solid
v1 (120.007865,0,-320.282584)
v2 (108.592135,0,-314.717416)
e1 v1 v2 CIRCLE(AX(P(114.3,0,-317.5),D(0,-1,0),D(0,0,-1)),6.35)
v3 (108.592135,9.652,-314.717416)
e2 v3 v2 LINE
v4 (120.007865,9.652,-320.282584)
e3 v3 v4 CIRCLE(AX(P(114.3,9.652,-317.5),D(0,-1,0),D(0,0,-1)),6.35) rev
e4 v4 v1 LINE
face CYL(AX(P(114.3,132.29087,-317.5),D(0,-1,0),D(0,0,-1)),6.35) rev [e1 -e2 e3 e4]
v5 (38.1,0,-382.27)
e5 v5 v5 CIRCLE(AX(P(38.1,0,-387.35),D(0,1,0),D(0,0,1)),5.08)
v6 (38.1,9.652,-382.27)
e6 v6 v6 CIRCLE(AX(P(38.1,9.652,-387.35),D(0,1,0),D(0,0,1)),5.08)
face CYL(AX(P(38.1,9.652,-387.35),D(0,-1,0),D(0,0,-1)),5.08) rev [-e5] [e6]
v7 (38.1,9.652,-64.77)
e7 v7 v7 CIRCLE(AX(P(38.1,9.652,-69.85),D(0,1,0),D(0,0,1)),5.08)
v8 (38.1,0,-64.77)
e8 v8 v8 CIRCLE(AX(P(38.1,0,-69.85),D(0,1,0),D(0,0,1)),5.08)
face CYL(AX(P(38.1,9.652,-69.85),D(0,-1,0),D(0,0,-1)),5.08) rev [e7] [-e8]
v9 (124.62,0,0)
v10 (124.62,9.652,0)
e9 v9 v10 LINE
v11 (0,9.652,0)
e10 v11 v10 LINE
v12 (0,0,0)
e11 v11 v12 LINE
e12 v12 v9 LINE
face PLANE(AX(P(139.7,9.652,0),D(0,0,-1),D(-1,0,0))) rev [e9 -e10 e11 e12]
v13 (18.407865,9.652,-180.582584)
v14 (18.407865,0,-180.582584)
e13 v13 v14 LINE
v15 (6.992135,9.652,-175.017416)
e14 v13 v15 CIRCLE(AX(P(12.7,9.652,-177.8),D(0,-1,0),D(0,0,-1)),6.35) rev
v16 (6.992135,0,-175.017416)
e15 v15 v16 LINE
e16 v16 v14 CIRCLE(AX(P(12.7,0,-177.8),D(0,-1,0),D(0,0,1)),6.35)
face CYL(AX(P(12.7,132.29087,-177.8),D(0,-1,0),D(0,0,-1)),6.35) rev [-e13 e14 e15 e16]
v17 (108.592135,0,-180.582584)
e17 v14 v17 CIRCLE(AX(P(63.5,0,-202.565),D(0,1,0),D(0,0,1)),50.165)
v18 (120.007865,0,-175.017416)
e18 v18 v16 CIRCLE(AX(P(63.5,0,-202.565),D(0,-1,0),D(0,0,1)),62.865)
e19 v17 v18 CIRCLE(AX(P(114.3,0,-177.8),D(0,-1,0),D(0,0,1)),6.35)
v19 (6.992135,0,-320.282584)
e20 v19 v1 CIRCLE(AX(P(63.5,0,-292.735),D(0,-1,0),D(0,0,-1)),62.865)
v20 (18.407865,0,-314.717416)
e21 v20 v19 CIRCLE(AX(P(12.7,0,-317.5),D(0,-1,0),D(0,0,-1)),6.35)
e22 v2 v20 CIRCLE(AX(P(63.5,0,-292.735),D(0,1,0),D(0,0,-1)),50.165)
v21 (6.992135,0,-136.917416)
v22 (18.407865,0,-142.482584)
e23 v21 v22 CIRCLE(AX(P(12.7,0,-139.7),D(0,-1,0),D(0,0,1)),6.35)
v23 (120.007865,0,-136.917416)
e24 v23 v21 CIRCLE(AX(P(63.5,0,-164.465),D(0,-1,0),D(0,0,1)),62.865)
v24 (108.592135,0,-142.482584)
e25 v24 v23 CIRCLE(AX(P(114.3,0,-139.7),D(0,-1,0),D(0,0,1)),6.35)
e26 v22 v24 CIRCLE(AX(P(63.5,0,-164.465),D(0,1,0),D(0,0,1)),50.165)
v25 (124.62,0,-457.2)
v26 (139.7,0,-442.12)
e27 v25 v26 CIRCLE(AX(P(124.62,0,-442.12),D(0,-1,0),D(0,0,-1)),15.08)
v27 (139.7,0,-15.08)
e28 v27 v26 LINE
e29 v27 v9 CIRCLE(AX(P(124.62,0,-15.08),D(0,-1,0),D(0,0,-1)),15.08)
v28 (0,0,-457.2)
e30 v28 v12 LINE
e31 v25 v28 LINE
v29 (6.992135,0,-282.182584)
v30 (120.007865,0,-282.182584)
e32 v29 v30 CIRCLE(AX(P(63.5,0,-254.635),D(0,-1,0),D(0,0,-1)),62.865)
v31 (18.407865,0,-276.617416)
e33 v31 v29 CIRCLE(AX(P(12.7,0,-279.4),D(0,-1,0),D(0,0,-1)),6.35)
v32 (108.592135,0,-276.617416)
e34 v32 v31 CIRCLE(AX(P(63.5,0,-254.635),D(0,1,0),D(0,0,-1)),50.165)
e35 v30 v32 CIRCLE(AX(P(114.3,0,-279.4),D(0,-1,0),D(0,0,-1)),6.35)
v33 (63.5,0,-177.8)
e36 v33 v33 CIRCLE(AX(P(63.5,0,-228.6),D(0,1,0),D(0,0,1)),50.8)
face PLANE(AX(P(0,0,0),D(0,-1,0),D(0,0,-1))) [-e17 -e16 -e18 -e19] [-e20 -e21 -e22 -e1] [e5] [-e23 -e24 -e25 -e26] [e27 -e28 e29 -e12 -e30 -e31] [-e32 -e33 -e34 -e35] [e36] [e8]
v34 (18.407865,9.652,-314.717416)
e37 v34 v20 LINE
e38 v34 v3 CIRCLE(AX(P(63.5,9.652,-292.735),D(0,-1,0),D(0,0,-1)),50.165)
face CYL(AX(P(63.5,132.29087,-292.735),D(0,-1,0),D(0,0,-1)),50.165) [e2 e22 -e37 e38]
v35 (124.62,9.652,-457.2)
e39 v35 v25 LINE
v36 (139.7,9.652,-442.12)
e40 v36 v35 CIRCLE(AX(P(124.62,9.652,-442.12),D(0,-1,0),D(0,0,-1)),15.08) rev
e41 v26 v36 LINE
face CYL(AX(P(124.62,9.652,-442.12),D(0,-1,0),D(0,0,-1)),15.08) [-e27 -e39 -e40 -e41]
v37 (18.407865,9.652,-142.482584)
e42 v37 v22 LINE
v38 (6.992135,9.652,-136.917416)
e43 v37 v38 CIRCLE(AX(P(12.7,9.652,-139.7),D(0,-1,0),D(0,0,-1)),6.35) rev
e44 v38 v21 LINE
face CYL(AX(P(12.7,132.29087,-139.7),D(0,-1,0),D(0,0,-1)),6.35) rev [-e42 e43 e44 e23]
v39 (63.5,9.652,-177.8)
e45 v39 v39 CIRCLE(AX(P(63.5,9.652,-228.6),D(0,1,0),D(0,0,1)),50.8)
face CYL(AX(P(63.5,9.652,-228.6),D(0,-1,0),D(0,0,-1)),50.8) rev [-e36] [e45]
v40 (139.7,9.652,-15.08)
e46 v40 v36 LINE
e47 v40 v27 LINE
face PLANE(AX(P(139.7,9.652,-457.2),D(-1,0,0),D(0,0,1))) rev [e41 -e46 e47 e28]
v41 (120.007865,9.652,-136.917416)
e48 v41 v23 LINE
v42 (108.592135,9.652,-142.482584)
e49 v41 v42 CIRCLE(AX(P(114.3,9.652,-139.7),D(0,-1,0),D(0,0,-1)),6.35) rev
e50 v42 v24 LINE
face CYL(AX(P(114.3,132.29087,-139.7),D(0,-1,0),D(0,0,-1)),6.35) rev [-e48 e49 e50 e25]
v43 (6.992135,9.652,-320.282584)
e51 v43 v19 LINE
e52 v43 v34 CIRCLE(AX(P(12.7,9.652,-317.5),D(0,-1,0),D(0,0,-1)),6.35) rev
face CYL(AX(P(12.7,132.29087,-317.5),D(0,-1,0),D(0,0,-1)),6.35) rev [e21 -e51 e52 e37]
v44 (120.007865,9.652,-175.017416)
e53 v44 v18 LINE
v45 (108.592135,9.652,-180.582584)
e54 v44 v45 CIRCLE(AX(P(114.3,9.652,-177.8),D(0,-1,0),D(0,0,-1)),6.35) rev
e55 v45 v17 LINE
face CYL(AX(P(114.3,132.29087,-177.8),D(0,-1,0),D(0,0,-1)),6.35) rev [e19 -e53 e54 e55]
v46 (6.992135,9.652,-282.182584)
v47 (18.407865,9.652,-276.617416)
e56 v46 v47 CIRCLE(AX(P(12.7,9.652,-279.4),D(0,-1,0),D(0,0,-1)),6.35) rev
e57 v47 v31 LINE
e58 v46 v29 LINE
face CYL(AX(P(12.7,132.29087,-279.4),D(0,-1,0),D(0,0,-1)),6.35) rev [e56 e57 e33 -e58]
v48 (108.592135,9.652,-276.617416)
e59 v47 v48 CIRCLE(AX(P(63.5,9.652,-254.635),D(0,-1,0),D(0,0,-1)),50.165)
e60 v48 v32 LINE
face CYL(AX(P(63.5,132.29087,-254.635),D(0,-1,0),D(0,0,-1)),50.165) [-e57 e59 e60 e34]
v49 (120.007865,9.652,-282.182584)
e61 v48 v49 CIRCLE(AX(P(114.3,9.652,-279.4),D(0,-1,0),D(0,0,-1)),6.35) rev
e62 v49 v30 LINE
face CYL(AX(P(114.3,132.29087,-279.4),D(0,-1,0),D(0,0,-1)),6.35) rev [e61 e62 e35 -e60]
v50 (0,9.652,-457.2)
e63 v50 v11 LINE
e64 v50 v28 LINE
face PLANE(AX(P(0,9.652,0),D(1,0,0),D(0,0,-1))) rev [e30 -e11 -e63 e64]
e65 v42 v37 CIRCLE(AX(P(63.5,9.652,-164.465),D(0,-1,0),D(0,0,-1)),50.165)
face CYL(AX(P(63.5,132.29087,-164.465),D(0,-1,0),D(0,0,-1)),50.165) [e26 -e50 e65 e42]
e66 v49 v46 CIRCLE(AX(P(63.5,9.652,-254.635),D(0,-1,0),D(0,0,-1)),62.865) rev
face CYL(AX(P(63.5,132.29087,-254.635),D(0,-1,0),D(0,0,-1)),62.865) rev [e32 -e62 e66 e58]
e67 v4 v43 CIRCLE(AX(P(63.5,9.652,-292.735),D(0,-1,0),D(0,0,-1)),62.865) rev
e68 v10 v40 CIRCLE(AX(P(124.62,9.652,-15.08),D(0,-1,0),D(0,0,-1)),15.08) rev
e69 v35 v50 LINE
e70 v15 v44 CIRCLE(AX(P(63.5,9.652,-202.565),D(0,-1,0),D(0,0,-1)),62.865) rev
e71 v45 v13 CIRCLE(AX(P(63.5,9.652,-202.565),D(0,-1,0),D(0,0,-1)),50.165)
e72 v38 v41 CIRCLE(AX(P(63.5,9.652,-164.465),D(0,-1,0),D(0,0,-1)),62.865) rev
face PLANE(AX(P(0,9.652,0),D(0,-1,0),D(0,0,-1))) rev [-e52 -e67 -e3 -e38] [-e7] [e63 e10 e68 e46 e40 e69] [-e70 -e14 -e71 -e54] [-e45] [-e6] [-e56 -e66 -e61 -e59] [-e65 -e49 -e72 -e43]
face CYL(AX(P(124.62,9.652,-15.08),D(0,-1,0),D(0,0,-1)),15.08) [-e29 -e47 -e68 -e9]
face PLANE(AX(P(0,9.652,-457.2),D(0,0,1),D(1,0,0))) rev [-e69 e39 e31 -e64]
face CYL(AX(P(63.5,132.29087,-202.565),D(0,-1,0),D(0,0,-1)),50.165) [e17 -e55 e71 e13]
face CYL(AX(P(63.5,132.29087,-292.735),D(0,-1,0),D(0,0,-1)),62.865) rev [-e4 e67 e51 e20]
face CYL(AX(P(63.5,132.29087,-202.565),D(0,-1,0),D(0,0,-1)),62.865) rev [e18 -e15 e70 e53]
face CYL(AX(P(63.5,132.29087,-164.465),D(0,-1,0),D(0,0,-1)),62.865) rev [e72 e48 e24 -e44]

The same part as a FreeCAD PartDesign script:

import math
import FreeCAD as App
import Part
import Sketcher
from FreeCAD import Vector
Q = App.Units.Quantity


def edges_at(feature, points):
    """Names of the edges that pass closest to the given points."""
    edges = feature.Shape.Edges
    near = lambda p: min(range(len(edges)), key=lambda i: edges[i].distToShape(Part.Vertex(*p))[0])
    return sorted({f"Edge{near(p) + 1}" for p in points})


def add_polygon(sketch, points):
    """Adds a closed chain of lines whose ends are joined by coincident constraints."""
    first, n = sketch.GeometryCount, len(points)
    for a, b in zip(points, points[1:] + points[:1]):
        sketch.addGeometry(Part.LineSegment(App.Vector(*a, 0), App.Vector(*b, 0)), False)
    for i in range(n):
        sketch.addConstraint(Sketcher.Constraint("Coincident", first + i, 2, first + (i + 1) % n, 1))

doc = App.newDocument("Part")
body = doc.addObject("PartDesign::Body", "Body")

sketch1 = doc.addObject("Sketcher::SketchObject", "Sketch")
body.addObject(sketch1)
sketch1.AttachmentSupport = (doc.XZ_Plane, [""])
sketch1.MapMode = "FlatFace"
add_polygon(sketch1, [(0, -457), (0, 0), (140, 0), (140, -457)])
sketch1.addGeometry(Part.Circle(Vector(38, -70, 0), Vector(0, 0, 1), 5), False)
sketch1.addGeometry(Part.Circle(Vector(64, -229, 0), Vector(0, 0, 1), 51), False)
sketch1.addGeometry(Part.Circle(Vector(38, -387, 0), Vector(0, 0, 1), 5), False)
sketch1.addConstraint(Sketcher.Constraint("Vertical", 0))
sketch1.addConstraint(Sketcher.Constraint("Horizontal", 1))
sketch1.addConstraint(Sketcher.Constraint("Vertical", 2))
sketch1.addConstraint(Sketcher.Constraint("Horizontal", 3))
sketch1.addConstraint(Sketcher.Constraint("Coincident", 0, 2, -1, 1))
sketch1.addConstraint(Sketcher.Constraint("Equal", 4, 6))
sketch1.addConstraint(Sketcher.Constraint("Vertical", 4, 3, 6, 3))
sketch1.addConstraint(Sketcher.Constraint("Diameter", 5, Q("4 in")))
sketch1.addConstraint(Sketcher.Constraint("Diameter", 4, Q("0.4 in")))
sketch1.addConstraint(Sketcher.Constraint("DistanceY", 0, 1, 0, 2, Q("18 in")))
sketch1.addConstraint(Sketcher.Constraint("DistanceX", 1, 1, 1, 2, Q("5.5 in")))
sketch1.addConstraint(Sketcher.Constraint("DistanceY", 5, 3, -1, 1, Q("9 in")))
sketch1.addConstraint(Sketcher.Constraint("DistanceX", 4, 3, 5, 3, Q("1 in")))
sketch1.addConstraint(Sketcher.Constraint("DistanceX", 4, 3, 1, 2, Q("4 in")))
sketch1.addConstraint(Sketcher.Constraint("DistanceY", 6, 3, 4, 3, Q("12.5 in")))
sketch1.addConstraint(Sketcher.Constraint("DistanceY", 4, 3, -1, 1, Q("2.75 in")))
pad1 = doc.addObject("PartDesign::Pad", "Pad")
body.addObject(pad1)
pad1.Profile = sketch1
pad1.Length = Q("0.38 in")
pad1.Reversed = True
doc.recompute()

fillet = doc.addObject("PartDesign::Fillet", "Fillet")
body.addObject(fillet)
fillet.Base = (pad1, edges_at(pad1, [(139.7, 4.826, -457.2), (139.7, 4.826, 0)]))
fillet.Radius = 15.08

sketch2 = doc.addObject("Sketcher::SketchObject", "Sketch001")
body.addObject(sketch2)
sketch2.AttachmentSupport = (doc.XZ_Plane, [""])
sketch2.MapMode = "FlatFace"
sketch2.addGeometry(Part.ArcOfCircle(Part.Circle(Vector(64, -293, 0), Vector(0, 0, 1), 50), math.radians(-154), math.radians(-26)), False)
sketch2.addGeometry(Part.ArcOfCircle(Part.Circle(Vector(13, -318, 0), Vector(0, 0, 1), 6), math.radians(26), math.radians(206)), False)
sketch2.addGeometry(Part.ArcOfCircle(Part.Circle(Vector(64, -293, 0), Vector(0, 0, 1), 63), math.radians(-154), math.radians(-26)), False)
sketch2.addGeometry(Part.ArcOfCircle(Part.Circle(Vector(114, -318, 0), Vector(0, 0, 1), 6), math.radians(-26), math.radians(154)), False)
sketch2.addGeometry(Part.ArcOfCircle(Part.Circle(Vector(64, -255, 0), Vector(0, 0, 1), 63), math.radians(-154), math.radians(-26)), False)
sketch2.addGeometry(Part.ArcOfCircle(Part.Circle(Vector(114, -279, 0), Vector(0, 0, 1), 6), math.radians(-26), math.radians(154)), False)
sketch2.addGeometry(Part.ArcOfCircle(Part.Circle(Vector(64, -255, 0), Vector(0, 0, 1), 50), math.radians(-154), math.radians(-26)), False)
sketch2.addGeometry(Part.ArcOfCircle(Part.Circle(Vector(13, -279, 0), Vector(0, 0, 1), 6), math.radians(26), math.radians(206)), False)
sketch2.addGeometry(Part.ArcOfCircle(Part.Circle(Vector(64, -164, 0), Vector(0, 0, 1), 63), math.radians(26), math.radians(154)), False)
sketch2.addGeometry(Part.ArcOfCircle(Part.Circle(Vector(13, -140, 0), Vector(0, 0, 1), 6), math.radians(154), math.radians(334)), False)
sketch2.addGeometry(Part.ArcOfCircle(Part.Circle(Vector(64, -164, 0), Vector(0, 0, 1), 50), math.radians(26), math.radians(154)), False)
sketch2.addGeometry(Part.ArcOfCircle(Part.Circle(Vector(114, -140, 0), Vector(0, 0, 1), 6), math.radians(-154), math.radians(26)), False)
sketch2.addGeometry(Part.ArcOfCircle(Part.Circle(Vector(64, -203, 0), Vector(0, 0, 1), 63), math.radians(26), math.radians(154)), False)
sketch2.addGeometry(Part.ArcOfCircle(Part.Circle(Vector(13, -178, 0), Vector(0, 0, 1), 6), math.radians(154), math.radians(334)), False)
sketch2.addGeometry(Part.ArcOfCircle(Part.Circle(Vector(64, -203, 0), Vector(0, 0, 1), 50), math.radians(26), math.radians(154)), False)
sketch2.addGeometry(Part.ArcOfCircle(Part.Circle(Vector(114, -178, 0), Vector(0, 0, 1), 6), math.radians(-154), math.radians(26)), False)
sketch2.addConstraint(Sketcher.Constraint("Tangent", 0, 1, 1, 1))
sketch2.addConstraint(Sketcher.Constraint("Tangent", 1, 2, 2, 1))
sketch2.addConstraint(Sketcher.Constraint("Tangent", 2, 2, 3, 1))
sketch2.addConstraint(Sketcher.Constraint("Tangent", 3, 2, 0, 2))
sketch2.addConstraint(Sketcher.Constraint("Tangent", 4, 2, 5, 1))
sketch2.addConstraint(Sketcher.Constraint("Tangent", 5, 2, 6, 2))
sketch2.addConstraint(Sketcher.Constraint("Tangent", 6, 1, 7, 1))
sketch2.addConstraint(Sketcher.Constraint("Tangent", 7, 2, 4, 1))
sketch2.addConstraint(Sketcher.Constraint("Tangent", 8, 2, 9, 1))
sketch2.addConstraint(Sketcher.Constraint("Tangent", 9, 2, 10, 2))
sketch2.addConstraint(Sketcher.Constraint("Tangent", 10, 1, 11, 1))
sketch2.addConstraint(Sketcher.Constraint("Tangent", 11, 2, 8, 1))
sketch2.addConstraint(Sketcher.Constraint("Tangent", 12, 2, 13, 1))
sketch2.addConstraint(Sketcher.Constraint("Tangent", 13, 2, 14, 2))
sketch2.addConstraint(Sketcher.Constraint("Tangent", 14, 1, 15, 1))
sketch2.addConstraint(Sketcher.Constraint("Tangent", 15, 2, 12, 1))
sketch2.addConstraint(Sketcher.Constraint("Coincident", 2, 3, 0, 3))
sketch2.addConstraint(Sketcher.Constraint("Coincident", 6, 3, 4, 3))
sketch2.addConstraint(Sketcher.Constraint("Coincident", 10, 3, 8, 3))
sketch2.addConstraint(Sketcher.Constraint("Coincident", 14, 3, 12, 3))
sketch2.addConstraint(Sketcher.Constraint("Equal", 2, 4))
sketch2.addConstraint(Sketcher.Constraint("Equal", 3, 5))
sketch2.addConstraint(Sketcher.Constraint("Equal", 4, 8))
sketch2.addConstraint(Sketcher.Constraint("Equal", 7, 9))
sketch2.addConstraint(Sketcher.Constraint("Equal", 8, 12))
sketch2.addConstraint(Sketcher.Constraint("Equal", 11, 13))
sketch2.addConstraint(Sketcher.Constraint("Horizontal", 1, 3, 3, 3))
sketch2.addConstraint(Sketcher.Constraint("Horizontal", 5, 3, 7, 3))
sketch2.addConstraint(Sketcher.Constraint("Horizontal", 9, 3, 11, 3))
sketch2.addConstraint(Sketcher.Constraint("Horizontal", 13, 3, 15, 3))
sketch2.addConstraint(Sketcher.Constraint("Vertical", 2, 3, 4, 3))
sketch2.addConstraint(Sketcher.Constraint("Vertical", 3, 3, 5, 3))
sketch2.addConstraint(Sketcher.Constraint("Vertical", 6, 3, 8, 3))
sketch2.addConstraint(Sketcher.Constraint("Vertical", 7, 3, 9, 3))
sketch2.addConstraint(Sketcher.Constraint("Vertical", 10, 3, 12, 3))
sketch2.addConstraint(Sketcher.Constraint("Vertical", 9, 3, 13, 3))
sketch2.addConstraint(Sketcher.Constraint("Radius", 1, Q("0.25 in")))
sketch2.addConstraint(Sketcher.Constraint("DistanceY", 5, 3, -1, 1, Q("11 in")))
sketch2.addConstraint(Sketcher.Constraint("DistanceY", 13, 3, -1, 1, Q("7 in")))
sketch2.addConstraint(Sketcher.Constraint("Radius", 0, Q("1.975 in")))
sketch2.addConstraint(Sketcher.Constraint("DistanceX", 1, 3, 0, 3, Q("2 in")))
sketch2.addConstraint(Sketcher.Constraint("DistanceX", -1, 1, 0, 3, Q("2.5 in")))
sketch2.addConstraint(Sketcher.Constraint("DistanceY", 1, 3, -1, 1, Q("12.5 in")))
sketch2.addConstraint(Sketcher.Constraint("DistanceY", 9, 3, -1, 1, Q("5.5 in")))
pocket1 = doc.addObject("PartDesign::Pocket", "Pocket")
body.addObject(pocket1)
pocket1.Profile = sketch2
pocket1.Length = Q("0.38 in")

doc.recompute()
